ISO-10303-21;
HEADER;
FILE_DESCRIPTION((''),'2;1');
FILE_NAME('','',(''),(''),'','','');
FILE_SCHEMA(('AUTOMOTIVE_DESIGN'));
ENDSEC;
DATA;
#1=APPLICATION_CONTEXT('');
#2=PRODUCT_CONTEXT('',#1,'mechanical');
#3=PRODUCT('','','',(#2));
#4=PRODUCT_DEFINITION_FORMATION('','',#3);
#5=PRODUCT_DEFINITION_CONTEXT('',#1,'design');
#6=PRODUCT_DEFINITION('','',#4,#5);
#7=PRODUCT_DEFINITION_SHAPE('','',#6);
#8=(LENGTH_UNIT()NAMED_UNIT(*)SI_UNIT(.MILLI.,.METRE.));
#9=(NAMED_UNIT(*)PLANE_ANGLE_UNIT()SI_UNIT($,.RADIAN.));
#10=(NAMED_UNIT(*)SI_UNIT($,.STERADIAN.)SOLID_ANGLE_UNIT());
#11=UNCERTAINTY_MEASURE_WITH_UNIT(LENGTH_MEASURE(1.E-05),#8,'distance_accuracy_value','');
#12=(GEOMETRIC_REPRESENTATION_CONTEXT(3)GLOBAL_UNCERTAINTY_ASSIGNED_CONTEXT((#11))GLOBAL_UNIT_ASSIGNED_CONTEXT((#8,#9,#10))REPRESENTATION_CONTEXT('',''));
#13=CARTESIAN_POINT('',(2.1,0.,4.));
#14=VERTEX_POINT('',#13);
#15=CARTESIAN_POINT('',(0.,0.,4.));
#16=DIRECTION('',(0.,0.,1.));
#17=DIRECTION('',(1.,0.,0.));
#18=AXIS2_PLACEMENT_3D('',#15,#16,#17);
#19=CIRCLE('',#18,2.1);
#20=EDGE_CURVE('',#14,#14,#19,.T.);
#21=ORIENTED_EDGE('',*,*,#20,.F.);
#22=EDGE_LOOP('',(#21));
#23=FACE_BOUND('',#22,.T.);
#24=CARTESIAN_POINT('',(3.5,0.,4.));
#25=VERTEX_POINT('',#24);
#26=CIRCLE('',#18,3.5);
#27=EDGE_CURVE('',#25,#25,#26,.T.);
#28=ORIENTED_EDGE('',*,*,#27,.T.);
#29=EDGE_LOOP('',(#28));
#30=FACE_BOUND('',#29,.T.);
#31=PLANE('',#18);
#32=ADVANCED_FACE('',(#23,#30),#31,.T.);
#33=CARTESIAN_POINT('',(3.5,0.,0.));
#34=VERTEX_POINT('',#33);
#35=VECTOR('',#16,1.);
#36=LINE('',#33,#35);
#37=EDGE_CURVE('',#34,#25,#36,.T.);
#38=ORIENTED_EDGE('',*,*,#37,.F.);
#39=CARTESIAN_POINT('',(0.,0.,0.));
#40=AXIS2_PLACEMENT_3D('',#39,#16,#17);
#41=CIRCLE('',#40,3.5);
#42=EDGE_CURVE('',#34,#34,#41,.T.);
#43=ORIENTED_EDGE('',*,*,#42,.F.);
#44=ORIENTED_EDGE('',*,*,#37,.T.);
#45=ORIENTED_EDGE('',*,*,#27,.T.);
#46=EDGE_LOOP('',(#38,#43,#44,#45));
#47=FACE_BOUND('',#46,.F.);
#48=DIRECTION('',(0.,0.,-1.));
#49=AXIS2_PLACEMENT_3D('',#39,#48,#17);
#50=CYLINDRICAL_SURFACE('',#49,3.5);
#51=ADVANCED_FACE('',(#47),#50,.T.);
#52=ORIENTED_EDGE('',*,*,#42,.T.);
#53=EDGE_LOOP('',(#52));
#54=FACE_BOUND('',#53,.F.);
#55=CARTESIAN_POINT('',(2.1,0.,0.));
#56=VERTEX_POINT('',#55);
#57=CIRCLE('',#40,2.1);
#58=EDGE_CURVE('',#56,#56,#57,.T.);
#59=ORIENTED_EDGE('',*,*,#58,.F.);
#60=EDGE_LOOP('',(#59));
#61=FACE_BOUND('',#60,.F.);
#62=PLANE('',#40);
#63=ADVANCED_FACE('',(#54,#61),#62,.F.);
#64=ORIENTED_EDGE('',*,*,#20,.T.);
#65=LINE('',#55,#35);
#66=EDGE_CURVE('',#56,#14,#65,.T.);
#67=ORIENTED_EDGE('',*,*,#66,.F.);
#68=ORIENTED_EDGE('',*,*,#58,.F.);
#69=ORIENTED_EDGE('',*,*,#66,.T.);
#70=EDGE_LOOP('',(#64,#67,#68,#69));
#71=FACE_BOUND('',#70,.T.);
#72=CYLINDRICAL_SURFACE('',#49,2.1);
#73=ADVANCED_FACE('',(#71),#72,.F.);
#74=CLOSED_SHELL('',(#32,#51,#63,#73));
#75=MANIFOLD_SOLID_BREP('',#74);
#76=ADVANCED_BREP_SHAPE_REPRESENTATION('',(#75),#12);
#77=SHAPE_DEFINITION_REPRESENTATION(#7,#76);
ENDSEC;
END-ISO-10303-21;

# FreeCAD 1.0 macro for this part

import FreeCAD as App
import Part
import Sketcher
from FreeCAD import Vector
Q = App.Units.Quantity

doc = App.newDocument("Part")
body = doc.addObject("PartDesign::Body", "Body")

# Sketch on XY plane
sketch1 = doc.addObject("Sketcher::SketchObject", "Sketch")
body.addObject(sketch1)
sketch1.AttachmentSupport = (doc.XY_Plane, [""])
sketch1.MapMode = "FlatFace"
sketch1.addGeometry([
    Part.Circle(Vector(0, 0, 0), Vector(0, 0, 1), 3.5),
    Part.Circle(Vector(0, 0, 0), Vector(0, 0, 1), 2.1),
], False)
sketch1.addConstraint([
    Sketcher.Constraint("Coincident", 0, 3, -1, 1),
    Sketcher.Constraint("Coincident", 1, 3, -1, 1),
    Sketcher.Constraint("Diameter", 1, Q("4.2 mm")),
    Sketcher.Constraint("Diameter", 0, Q("7 mm")),
])
pad1 = doc.addObject("PartDesign::Pad", "Pad")
body.addObject(pad1)
pad1.Profile = sketch1
pad1.Length = 4

doc.recompute()
